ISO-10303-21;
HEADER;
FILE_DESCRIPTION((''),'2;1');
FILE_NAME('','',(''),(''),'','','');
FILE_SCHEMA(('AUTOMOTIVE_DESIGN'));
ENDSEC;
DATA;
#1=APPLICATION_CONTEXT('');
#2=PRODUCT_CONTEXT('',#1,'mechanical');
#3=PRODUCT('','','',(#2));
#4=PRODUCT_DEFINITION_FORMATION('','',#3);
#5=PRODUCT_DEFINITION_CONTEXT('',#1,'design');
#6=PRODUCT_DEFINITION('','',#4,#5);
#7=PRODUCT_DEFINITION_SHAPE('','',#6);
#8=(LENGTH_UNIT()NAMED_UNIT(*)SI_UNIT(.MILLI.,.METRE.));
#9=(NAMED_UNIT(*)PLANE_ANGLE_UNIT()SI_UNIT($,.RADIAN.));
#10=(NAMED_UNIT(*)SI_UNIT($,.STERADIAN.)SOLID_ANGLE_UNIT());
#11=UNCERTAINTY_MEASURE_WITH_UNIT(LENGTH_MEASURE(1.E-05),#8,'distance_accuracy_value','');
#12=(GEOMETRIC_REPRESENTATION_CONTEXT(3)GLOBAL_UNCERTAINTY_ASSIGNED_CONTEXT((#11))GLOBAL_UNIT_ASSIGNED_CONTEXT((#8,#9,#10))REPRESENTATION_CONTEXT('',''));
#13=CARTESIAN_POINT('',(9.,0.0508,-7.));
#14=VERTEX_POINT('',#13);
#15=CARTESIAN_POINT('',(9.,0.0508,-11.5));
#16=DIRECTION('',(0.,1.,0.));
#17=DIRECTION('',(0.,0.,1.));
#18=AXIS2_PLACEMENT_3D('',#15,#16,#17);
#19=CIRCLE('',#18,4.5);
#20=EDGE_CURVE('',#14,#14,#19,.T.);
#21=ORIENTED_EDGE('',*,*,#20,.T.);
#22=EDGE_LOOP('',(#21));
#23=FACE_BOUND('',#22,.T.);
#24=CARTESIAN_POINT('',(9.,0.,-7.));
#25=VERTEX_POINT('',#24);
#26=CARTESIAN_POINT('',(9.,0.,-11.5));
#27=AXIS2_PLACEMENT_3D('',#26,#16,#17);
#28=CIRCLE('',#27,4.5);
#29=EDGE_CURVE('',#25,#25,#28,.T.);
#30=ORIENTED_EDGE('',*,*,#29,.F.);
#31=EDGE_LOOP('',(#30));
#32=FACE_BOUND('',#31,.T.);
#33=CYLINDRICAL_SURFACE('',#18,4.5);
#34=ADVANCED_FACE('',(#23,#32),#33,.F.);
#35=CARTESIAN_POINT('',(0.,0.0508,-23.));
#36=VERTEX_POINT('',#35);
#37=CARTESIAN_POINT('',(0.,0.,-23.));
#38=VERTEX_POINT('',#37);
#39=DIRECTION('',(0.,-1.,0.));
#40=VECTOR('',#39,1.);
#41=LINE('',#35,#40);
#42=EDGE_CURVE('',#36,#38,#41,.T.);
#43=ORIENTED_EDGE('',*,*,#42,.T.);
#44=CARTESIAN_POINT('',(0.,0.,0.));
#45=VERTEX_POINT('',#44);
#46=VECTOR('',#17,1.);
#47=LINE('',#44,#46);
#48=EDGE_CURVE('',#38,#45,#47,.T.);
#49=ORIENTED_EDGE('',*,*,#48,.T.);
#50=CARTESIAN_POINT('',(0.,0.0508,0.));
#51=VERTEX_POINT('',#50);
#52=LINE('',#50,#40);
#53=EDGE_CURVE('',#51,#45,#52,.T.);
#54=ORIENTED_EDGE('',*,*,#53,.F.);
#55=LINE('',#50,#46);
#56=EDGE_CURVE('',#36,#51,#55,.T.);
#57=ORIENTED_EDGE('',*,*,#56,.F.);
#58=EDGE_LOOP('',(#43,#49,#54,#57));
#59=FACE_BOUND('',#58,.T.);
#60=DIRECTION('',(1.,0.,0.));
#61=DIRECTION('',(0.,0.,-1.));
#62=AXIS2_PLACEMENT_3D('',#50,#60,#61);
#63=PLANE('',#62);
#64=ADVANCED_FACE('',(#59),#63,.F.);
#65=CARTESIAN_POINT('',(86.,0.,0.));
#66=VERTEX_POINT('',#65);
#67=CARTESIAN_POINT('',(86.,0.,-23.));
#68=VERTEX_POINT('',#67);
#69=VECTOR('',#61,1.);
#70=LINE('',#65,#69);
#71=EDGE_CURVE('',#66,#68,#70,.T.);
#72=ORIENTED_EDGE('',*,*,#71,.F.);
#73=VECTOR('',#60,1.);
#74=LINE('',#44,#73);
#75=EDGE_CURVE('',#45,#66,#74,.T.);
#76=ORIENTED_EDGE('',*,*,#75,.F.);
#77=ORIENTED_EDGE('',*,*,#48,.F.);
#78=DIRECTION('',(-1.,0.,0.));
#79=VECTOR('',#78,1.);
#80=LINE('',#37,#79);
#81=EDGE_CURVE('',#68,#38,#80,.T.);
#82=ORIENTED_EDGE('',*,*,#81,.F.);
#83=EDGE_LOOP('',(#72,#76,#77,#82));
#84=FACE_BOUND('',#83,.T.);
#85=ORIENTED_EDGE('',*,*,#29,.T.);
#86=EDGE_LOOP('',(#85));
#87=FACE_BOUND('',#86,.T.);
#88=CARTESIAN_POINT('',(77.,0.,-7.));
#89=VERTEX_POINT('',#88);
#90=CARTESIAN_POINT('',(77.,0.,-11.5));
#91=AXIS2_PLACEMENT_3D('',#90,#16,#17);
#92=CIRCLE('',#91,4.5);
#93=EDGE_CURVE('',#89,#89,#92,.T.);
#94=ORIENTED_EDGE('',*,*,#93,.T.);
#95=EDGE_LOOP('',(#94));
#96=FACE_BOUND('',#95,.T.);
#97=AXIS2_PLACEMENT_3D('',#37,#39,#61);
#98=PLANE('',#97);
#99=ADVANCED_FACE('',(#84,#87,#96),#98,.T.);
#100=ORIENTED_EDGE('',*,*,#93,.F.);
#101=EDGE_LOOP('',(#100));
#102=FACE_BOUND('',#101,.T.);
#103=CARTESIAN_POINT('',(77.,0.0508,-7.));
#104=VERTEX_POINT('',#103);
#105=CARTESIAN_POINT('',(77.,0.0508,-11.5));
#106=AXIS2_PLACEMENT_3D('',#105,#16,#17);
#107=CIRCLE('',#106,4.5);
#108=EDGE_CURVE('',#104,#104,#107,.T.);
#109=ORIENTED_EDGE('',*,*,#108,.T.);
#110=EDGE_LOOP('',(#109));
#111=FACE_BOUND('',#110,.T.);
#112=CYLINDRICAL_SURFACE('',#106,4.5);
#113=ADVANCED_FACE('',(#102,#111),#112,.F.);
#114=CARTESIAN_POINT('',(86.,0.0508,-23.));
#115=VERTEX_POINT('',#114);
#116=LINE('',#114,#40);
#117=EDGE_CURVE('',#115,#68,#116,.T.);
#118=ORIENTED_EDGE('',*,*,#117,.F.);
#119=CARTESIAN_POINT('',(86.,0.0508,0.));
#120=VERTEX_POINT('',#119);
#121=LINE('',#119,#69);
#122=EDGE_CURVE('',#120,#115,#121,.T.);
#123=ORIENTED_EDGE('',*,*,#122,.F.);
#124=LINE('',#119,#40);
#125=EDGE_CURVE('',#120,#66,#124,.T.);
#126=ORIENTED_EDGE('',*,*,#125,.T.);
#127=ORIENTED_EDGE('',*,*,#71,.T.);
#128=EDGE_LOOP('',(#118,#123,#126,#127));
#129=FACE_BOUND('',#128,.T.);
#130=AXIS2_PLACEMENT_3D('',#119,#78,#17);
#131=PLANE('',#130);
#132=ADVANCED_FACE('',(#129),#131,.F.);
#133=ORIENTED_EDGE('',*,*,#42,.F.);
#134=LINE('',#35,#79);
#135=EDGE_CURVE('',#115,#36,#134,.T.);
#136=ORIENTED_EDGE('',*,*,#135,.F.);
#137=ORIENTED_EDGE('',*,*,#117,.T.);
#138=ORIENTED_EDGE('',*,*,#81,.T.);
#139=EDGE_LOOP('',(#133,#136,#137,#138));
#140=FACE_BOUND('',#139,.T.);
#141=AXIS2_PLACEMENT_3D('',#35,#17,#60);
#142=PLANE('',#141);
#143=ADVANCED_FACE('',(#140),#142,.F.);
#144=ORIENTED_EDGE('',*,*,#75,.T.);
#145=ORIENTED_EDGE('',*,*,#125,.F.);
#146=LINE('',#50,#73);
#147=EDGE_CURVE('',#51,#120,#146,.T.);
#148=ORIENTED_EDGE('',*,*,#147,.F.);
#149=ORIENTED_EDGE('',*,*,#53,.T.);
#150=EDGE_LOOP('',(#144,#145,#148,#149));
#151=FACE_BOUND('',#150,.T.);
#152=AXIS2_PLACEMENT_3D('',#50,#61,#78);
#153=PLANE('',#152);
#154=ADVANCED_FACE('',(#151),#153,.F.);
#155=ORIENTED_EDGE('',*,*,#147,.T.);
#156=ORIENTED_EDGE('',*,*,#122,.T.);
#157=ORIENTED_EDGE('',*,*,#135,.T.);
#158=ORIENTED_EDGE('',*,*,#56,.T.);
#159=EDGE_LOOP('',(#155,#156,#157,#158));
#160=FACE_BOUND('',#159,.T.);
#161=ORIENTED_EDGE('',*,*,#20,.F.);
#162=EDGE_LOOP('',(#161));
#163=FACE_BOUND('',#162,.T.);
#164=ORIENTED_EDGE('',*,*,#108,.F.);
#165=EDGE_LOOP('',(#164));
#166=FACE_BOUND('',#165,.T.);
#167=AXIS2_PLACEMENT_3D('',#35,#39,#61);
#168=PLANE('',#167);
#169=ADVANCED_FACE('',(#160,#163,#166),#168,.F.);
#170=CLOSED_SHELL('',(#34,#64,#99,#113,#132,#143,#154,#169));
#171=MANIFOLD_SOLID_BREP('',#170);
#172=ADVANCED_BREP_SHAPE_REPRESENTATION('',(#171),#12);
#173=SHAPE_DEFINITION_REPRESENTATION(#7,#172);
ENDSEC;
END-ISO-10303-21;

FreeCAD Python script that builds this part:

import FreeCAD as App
import Part
import Sketcher
from FreeCAD import Vector


def add_polygon(sketch, points):
    """Adds a closed chain of lines whose ends are joined by coincident constraints."""
    first, n = sketch.GeometryCount, len(points)
    for a, b in zip(points, points[1:] + points[:1]):
        sketch.addGeometry(Part.LineSegment(App.Vector(*a, 0), App.Vector(*b, 0)), False)
    for i in range(n):
        sketch.addConstraint(Sketcher.Constraint("Coincident", first + i, 2, first + (i + 1) % n, 1))

doc = App.newDocument("Part")
params = doc.addObject("Spreadsheet::Sheet", "Params")
for row, (alias, value) in enumerate([
    ("sketch1_width", "86 mm"),
    ("sketch1_height", "23 mm"),
    ("pad1_length", "0.0508 mm"),
    ("sketch2_diameter", "9 mm"),
    ("hole_diameter", "9 mm"),
], start=1):
    params.set(f"A{row}", alias)
    params.set(f"B{row}", "=" + value)
    params.setAlias(f"B{row}", alias)

body = doc.addObject("PartDesign::Body", "Body")

sketch1 = doc.addObject("Sketcher::SketchObject", "Sketch")
body.addObject(sketch1)
sketch1.AttachmentSupport = (doc.XZ_Plane, [""])
sketch1.MapMode = "FlatFace"
add_polygon(sketch1, [(0, -23), (0, 0), (86, 0), (86, -23)])
sketch1.addConstraint(Sketcher.Constraint("Vertical", 0))
sketch1.addConstraint(Sketcher.Constraint("Horizontal", 1))
sketch1.addConstraint(Sketcher.Constraint("Vertical", 2))
sketch1.addConstraint(Sketcher.Constraint("Horizontal", 3))
sketch1.addConstraint(Sketcher.Constraint("Coincident", 0, 2, -1, 1))
sketch1.addConstraint(Sketcher.Constraint("DistanceX", 1, 1, 1, 2, 86.0))
sketch1.addConstraint(Sketcher.Constraint("DistanceY", 0, 1, 0, 2, 23.0))
sketch1.setExpression("Constraints[9]", "Params.sketch1_width")
sketch1.setExpression("Constraints[10]", "Params.sketch1_height")
pad1 = doc.addObject("PartDesign::Pad", "Pad")
body.addObject(pad1)
pad1.Profile = sketch1
pad1.setExpression("Length", "Params.pad1_length")
pad1.Reversed = True

sketch2 = doc.addObject("Sketcher::SketchObject", "Sketch001")
body.addObject(sketch2)
sketch2.AttachmentSupport = (doc.XZ_Plane, [""])
sketch2.MapMode = "FlatFace"
sketch2.AttachmentOffset = App.Placement(Vector(0, 0, -0.0508), App.Rotation())
sketch2.addGeometry(Part.Circle(Vector(9, -11.5, 0), Vector(0, 0, 1), 4.5), False)
sketch2.addGeometry(Part.Circle(Vector(77, -11.5, 0), Vector(0, 0, 1), 4.5), False)
sketch2.addConstraint(Sketcher.Constraint("Equal", 0, 1))
sketch2.addConstraint(Sketcher.Constraint("Horizontal", 0, 3, 1, 3))
sketch2.addConstraint(Sketcher.Constraint("Diameter", 0, 9.0))
sketch2.addConstraint(Sketcher.Constraint("DistanceX", -1, 1, 0, 3, 9.0))
sketch2.addConstraint(Sketcher.Constraint("DistanceX", -1, 1, 1, 3, 77.0))
sketch2.addConstraint(Sketcher.Constraint("DistanceY", 0, 3, -1, 1, 11.5))
sketch2.setExpression("Constraints[2]", "Params.sketch2_diameter")
doc.recompute()
hole = doc.addObject("PartDesign::Hole", "Hole")
body.addObject(hole)
hole.Profile = sketch2
hole.ThreadType = "None"
hole.setExpression("Diameter", "Params.hole_diameter")
hole.DepthType = "ThroughAll"
hole.Reversed = True

doc.recompute()
